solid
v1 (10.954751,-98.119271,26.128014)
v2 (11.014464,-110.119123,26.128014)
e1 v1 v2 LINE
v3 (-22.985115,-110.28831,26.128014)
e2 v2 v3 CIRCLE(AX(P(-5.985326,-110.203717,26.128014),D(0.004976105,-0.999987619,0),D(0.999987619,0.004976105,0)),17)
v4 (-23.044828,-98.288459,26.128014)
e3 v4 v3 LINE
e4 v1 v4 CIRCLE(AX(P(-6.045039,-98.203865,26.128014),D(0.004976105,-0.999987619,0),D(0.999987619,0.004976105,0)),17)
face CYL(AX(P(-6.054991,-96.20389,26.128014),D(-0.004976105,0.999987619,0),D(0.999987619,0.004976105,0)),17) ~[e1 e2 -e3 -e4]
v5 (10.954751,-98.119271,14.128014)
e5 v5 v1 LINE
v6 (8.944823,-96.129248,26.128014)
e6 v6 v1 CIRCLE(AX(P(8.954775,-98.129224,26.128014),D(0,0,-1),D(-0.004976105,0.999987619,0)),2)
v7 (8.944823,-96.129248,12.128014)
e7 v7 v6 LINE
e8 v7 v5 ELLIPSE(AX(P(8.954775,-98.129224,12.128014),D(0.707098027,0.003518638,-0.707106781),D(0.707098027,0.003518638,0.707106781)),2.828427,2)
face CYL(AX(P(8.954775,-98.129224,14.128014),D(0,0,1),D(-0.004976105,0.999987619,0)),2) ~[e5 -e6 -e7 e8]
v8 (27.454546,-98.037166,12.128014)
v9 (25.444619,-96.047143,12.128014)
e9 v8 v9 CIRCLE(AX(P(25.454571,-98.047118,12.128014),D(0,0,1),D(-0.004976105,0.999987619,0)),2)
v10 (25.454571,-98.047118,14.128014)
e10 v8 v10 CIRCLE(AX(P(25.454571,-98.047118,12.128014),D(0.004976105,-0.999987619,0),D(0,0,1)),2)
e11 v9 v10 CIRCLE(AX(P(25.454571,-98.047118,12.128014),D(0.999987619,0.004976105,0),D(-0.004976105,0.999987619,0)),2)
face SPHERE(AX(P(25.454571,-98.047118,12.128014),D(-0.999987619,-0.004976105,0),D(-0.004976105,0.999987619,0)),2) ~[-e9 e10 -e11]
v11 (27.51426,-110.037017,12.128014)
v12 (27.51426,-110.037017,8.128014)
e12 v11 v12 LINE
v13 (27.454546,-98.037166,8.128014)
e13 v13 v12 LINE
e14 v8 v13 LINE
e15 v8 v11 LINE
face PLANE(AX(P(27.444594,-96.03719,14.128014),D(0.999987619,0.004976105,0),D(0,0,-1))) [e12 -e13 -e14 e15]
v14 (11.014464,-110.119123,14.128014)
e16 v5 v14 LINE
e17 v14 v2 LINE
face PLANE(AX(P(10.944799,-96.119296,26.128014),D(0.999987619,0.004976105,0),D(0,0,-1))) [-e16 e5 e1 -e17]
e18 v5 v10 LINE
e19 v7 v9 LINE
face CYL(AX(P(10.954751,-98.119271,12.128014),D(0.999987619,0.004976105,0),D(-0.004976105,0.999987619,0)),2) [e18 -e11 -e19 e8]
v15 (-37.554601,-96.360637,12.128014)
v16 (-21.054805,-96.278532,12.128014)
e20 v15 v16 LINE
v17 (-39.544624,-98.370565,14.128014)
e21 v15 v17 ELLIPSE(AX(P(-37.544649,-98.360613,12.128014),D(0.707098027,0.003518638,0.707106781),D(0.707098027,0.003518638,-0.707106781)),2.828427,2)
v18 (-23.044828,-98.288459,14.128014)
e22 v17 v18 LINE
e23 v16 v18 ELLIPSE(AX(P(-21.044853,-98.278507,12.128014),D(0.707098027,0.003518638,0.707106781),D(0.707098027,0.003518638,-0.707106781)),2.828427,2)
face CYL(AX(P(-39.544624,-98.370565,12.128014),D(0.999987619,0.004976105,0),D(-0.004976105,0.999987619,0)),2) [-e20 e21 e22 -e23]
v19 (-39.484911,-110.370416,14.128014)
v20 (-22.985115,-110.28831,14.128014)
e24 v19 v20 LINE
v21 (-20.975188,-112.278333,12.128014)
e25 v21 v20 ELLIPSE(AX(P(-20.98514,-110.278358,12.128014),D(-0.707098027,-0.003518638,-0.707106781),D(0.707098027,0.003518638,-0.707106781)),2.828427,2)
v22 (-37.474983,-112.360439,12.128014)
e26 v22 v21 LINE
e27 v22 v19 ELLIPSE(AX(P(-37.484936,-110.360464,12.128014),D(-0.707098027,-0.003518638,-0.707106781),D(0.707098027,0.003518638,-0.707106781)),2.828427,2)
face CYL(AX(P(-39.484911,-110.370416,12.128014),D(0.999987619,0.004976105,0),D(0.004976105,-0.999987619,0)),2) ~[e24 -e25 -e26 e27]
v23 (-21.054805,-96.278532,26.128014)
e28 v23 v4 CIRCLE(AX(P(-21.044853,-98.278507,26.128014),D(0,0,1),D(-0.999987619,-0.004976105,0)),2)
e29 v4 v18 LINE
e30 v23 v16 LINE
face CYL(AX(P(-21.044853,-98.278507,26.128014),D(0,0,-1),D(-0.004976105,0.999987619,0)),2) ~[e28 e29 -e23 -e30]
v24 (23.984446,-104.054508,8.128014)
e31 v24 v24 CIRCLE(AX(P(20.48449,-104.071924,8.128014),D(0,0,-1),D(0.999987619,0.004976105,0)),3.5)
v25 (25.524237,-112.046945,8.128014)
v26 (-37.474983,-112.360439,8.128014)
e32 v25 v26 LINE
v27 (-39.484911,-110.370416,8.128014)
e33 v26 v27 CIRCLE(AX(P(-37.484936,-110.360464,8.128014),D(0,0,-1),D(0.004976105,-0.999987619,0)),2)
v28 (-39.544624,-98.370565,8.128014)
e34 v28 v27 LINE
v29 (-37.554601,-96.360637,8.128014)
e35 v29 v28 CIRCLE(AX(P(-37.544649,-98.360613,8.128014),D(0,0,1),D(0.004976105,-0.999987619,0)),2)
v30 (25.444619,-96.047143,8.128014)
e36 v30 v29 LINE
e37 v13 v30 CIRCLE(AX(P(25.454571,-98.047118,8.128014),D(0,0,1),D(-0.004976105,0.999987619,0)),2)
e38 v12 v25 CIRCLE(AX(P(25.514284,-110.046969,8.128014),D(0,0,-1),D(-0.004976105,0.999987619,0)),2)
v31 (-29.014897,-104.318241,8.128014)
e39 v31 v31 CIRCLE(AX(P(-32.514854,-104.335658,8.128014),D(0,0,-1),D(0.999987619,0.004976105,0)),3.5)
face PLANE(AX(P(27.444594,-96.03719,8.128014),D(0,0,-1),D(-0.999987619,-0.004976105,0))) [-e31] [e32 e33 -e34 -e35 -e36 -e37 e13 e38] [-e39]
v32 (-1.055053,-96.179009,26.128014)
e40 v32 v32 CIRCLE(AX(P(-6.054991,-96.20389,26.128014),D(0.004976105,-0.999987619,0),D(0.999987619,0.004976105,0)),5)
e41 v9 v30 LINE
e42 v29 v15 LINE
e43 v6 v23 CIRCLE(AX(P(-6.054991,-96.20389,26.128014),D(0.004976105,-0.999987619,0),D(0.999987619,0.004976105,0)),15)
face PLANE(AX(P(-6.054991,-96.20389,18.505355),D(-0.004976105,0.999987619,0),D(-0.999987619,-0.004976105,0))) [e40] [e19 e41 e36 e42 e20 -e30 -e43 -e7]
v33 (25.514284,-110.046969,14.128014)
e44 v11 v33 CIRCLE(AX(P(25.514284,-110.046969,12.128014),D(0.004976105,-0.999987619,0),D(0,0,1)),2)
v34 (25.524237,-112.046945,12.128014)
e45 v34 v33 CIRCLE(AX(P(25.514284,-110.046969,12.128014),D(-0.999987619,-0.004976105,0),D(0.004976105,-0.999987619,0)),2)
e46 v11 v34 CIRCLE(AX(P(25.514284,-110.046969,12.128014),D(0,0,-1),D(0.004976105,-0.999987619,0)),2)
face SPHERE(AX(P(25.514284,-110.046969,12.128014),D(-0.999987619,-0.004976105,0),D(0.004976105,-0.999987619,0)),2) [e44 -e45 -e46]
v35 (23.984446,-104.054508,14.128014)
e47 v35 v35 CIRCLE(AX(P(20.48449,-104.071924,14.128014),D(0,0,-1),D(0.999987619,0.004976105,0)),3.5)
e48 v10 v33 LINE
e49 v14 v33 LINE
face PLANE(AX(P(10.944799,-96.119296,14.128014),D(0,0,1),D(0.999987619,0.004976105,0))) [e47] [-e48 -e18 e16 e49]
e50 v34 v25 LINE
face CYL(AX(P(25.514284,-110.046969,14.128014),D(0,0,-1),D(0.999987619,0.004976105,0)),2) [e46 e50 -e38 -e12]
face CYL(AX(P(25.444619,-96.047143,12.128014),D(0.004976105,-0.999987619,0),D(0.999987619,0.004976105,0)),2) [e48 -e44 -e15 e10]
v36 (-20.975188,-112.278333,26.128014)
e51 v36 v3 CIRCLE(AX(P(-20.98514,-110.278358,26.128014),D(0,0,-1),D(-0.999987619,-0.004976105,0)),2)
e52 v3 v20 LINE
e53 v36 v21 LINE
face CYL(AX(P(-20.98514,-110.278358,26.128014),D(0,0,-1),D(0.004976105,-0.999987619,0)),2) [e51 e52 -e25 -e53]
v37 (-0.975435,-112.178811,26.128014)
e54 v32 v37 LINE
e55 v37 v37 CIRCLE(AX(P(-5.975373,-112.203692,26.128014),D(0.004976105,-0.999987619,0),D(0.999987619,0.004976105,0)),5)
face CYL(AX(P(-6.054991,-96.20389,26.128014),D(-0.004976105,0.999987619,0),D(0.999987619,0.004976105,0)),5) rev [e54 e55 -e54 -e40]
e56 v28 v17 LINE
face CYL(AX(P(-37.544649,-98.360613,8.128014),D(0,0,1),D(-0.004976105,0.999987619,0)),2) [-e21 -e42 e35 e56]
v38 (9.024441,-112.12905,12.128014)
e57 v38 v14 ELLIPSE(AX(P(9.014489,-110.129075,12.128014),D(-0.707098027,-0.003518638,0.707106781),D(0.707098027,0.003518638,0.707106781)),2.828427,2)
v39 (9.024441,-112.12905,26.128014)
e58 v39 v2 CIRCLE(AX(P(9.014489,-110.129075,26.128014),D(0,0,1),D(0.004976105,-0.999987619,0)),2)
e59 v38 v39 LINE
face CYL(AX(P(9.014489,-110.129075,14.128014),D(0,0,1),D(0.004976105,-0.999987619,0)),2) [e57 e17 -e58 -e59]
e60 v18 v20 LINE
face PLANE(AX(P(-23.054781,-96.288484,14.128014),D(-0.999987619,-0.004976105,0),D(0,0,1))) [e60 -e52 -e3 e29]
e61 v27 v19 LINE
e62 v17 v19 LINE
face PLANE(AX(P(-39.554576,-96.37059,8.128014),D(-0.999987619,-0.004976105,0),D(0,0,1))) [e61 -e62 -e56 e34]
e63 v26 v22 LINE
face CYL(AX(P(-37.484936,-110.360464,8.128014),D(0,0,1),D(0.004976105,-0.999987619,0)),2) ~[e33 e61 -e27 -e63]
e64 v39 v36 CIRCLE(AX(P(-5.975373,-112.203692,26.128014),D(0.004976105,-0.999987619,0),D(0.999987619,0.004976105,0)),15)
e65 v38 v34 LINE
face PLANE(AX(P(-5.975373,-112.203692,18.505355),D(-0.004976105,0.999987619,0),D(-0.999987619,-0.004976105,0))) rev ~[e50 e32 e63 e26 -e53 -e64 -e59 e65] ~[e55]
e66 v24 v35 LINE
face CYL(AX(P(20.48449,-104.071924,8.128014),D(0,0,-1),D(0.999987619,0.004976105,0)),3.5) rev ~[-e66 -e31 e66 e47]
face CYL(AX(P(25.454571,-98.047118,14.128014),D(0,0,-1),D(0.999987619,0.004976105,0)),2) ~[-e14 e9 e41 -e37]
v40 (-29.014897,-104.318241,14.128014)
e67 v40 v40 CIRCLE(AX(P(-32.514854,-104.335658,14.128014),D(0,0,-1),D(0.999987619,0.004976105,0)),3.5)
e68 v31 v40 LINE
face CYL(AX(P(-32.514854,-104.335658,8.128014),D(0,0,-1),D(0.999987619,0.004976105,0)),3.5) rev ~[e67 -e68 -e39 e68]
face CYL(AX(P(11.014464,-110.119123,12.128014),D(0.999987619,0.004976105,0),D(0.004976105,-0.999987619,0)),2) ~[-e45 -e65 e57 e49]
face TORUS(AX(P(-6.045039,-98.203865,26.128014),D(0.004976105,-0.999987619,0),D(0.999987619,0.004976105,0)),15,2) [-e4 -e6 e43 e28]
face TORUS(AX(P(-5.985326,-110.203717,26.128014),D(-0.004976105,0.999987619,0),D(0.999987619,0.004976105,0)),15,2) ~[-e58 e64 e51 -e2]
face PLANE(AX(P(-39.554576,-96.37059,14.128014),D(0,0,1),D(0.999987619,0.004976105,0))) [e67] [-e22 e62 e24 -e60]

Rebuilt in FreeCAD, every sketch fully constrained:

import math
import FreeCAD as App
import Part
import Sketcher
from FreeCAD import Vector


def edges_at(feature, points):
    """Names of the edges that pass closest to the given points."""
    edges = feature.Shape.Edges
    near = lambda p: min(range(len(edges)), key=lambda i: edges[i].distToShape(Part.Vertex(*p))[0])
    return sorted({f"Edge{near(p) + 1}" for p in points})

doc = App.newDocument("Part")
body = doc.addObject("PartDesign::Body", "Body")

# Sketch on XZ plane
sketch1 = body.newObject("Sketcher::SketchObject", "Sketch")
sketch1.AttachmentSupport = (doc.getObject("XZ_Plane"), [""])
sketch1.MapMode = "FlatFace"
sketch1.addGeometry([
    Part.LineSegment(Vector(-34, -18, 0), Vector(34, -18, 0)),  # 0
    Part.LineSegment(Vector(34, -18, 0), Vector(34, -12, 0)),  # 1
    Part.LineSegment(Vector(34, -12, 0), Vector(17, -12, 0)),  # 2
    Part.LineSegment(Vector(17, -12, 0), Vector(17, 0, 0)),  # 3
    Part.ArcOfCircle(Part.Circle(Vector(0, 0, 0), Vector(0, 0, 1), 17), math.radians(0), math.radians(180)),  # 4
    Part.LineSegment(Vector(-17, 0, 0), Vector(-17, -12, 0)),  # 5
    Part.LineSegment(Vector(-17, -12, 0), Vector(-34, -12, 0)),  # 6
    Part.LineSegment(Vector(-34, -12, 0), Vector(-34, -18, 0)),  # 7
    Part.Circle(Vector(0, 0, 0), Vector(0, 0, 1), 5),  # 8
], False)
sketch1.addConstraint([
    Sketcher.Constraint("Coincident", 0, 2, 1, 1),
    Sketcher.Constraint("Coincident", 1, 2, 2, 1),
    Sketcher.Constraint("Coincident", 2, 2, 3, 1),
    Sketcher.Constraint("Tangent", 3, 2, 4, 1),
    Sketcher.Constraint("Tangent", 4, 2, 5, 1),
    Sketcher.Constraint("Coincident", 5, 2, 6, 1),
    Sketcher.Constraint("Coincident", 6, 2, 7, 1),
    Sketcher.Constraint("Coincident", 7, 2, 0, 1),
    Sketcher.Constraint("Horizontal", 0),
    Sketcher.Constraint("Vertical", 1),
    Sketcher.Constraint("Horizontal", 2),
    Sketcher.Constraint("Vertical", 3),
    Sketcher.Constraint("Vertical", 5),
    Sketcher.Constraint("Horizontal", 6),
    Sketcher.Constraint("Vertical", 7),
    Sketcher.Constraint("Coincident", 4, 3, -1, 1),
    Sketcher.Constraint("Coincident", 8, 3, -1, 1),
    Sketcher.Constraint("Symmetric", 1, 2, 6, 2, -2),
    Sketcher.Constraint("Diameter", 8, 10.0),
    Sketcher.Constraint("Radius", 4, 17.0),
    Sketcher.Constraint("DistanceX", 0, 1, 0, 2, 67.0),
    Sketcher.Constraint("DistanceY", 1, 1, 1, 2, 6.0),
    Sketcher.Constraint("DistanceY", 3, 1, 3, 2, 12.0),
])
pad1 = body.newObject("PartDesign::Pad", "Pad")
pad1.Profile = sketch1
pad1.Length = 16

# Sketch on XY plane
sketch2 = body.newObject("Sketcher::SketchObject", "Sketch001")
sketch2.AttachmentSupport = (doc.getObject("XY_Plane"), [""])
sketch2.MapMode = "FlatFace"
sketch2.AttachmentOffset = App.Placement(Vector(0, 0, -18), App.Rotation())
sketch2.addGeometry([
    Part.Circle(Vector(-26.5, -8, 0), Vector(0, 0, 1), 3.5),
    Part.Circle(Vector(26.5, -8, 0), Vector(0, 0, 1), 3.5),
], False)
sketch2.addConstraint([
    Sketcher.Constraint("Equal", 0, 1),
    Sketcher.Constraint("Symmetric", 0, 3, 1, 3, -2),
    Sketcher.Constraint("Diameter", 0, 7.0),
    Sketcher.Constraint("DistanceY", 0, 3, -1, 1, 8.0),
    Sketcher.Constraint("DistanceX", 0, 3, 1, 3, 53.0),
])
pocket1 = body.newObject("PartDesign::Pocket", "Pocket")
pocket1.Profile = sketch2
pocket1.Type = "ThroughAll"
pocket1.Reversed = True
doc.recompute()

fillet = body.newObject("PartDesign::Fillet", "Fillet")
fillet.Base = (pocket1, edges_at(pocket1, [
    (0, -16, 17),
    (0, 0, 17),
    (-25.25, 0, -12),
    (-25.25, -16, -12),
    (-33.5, -16, -15),
    (-33.5, 0, -15),
    (25.25, -16, -12),
    (25.25, 0, -12),
    (33.5, 0, -15),
    (33.5, -16, -15),
    (33.5, -8, -12),
]))
fillet.Radius = 2
body2 = doc.addObject("PartDesign::Body", "Body001")
doc.recompute()

body.Placement = App.Placement(Vector(-6.054991, -96.20389, 26.128014), App.Rotation(Vector(0, 0, 1), 0.285111))
boolean = body2.newObject("PartDesign::Boolean", "Boolean")
boolean.Type = "Fuse"
boolean.addObjects([body])

doc.recompute()
